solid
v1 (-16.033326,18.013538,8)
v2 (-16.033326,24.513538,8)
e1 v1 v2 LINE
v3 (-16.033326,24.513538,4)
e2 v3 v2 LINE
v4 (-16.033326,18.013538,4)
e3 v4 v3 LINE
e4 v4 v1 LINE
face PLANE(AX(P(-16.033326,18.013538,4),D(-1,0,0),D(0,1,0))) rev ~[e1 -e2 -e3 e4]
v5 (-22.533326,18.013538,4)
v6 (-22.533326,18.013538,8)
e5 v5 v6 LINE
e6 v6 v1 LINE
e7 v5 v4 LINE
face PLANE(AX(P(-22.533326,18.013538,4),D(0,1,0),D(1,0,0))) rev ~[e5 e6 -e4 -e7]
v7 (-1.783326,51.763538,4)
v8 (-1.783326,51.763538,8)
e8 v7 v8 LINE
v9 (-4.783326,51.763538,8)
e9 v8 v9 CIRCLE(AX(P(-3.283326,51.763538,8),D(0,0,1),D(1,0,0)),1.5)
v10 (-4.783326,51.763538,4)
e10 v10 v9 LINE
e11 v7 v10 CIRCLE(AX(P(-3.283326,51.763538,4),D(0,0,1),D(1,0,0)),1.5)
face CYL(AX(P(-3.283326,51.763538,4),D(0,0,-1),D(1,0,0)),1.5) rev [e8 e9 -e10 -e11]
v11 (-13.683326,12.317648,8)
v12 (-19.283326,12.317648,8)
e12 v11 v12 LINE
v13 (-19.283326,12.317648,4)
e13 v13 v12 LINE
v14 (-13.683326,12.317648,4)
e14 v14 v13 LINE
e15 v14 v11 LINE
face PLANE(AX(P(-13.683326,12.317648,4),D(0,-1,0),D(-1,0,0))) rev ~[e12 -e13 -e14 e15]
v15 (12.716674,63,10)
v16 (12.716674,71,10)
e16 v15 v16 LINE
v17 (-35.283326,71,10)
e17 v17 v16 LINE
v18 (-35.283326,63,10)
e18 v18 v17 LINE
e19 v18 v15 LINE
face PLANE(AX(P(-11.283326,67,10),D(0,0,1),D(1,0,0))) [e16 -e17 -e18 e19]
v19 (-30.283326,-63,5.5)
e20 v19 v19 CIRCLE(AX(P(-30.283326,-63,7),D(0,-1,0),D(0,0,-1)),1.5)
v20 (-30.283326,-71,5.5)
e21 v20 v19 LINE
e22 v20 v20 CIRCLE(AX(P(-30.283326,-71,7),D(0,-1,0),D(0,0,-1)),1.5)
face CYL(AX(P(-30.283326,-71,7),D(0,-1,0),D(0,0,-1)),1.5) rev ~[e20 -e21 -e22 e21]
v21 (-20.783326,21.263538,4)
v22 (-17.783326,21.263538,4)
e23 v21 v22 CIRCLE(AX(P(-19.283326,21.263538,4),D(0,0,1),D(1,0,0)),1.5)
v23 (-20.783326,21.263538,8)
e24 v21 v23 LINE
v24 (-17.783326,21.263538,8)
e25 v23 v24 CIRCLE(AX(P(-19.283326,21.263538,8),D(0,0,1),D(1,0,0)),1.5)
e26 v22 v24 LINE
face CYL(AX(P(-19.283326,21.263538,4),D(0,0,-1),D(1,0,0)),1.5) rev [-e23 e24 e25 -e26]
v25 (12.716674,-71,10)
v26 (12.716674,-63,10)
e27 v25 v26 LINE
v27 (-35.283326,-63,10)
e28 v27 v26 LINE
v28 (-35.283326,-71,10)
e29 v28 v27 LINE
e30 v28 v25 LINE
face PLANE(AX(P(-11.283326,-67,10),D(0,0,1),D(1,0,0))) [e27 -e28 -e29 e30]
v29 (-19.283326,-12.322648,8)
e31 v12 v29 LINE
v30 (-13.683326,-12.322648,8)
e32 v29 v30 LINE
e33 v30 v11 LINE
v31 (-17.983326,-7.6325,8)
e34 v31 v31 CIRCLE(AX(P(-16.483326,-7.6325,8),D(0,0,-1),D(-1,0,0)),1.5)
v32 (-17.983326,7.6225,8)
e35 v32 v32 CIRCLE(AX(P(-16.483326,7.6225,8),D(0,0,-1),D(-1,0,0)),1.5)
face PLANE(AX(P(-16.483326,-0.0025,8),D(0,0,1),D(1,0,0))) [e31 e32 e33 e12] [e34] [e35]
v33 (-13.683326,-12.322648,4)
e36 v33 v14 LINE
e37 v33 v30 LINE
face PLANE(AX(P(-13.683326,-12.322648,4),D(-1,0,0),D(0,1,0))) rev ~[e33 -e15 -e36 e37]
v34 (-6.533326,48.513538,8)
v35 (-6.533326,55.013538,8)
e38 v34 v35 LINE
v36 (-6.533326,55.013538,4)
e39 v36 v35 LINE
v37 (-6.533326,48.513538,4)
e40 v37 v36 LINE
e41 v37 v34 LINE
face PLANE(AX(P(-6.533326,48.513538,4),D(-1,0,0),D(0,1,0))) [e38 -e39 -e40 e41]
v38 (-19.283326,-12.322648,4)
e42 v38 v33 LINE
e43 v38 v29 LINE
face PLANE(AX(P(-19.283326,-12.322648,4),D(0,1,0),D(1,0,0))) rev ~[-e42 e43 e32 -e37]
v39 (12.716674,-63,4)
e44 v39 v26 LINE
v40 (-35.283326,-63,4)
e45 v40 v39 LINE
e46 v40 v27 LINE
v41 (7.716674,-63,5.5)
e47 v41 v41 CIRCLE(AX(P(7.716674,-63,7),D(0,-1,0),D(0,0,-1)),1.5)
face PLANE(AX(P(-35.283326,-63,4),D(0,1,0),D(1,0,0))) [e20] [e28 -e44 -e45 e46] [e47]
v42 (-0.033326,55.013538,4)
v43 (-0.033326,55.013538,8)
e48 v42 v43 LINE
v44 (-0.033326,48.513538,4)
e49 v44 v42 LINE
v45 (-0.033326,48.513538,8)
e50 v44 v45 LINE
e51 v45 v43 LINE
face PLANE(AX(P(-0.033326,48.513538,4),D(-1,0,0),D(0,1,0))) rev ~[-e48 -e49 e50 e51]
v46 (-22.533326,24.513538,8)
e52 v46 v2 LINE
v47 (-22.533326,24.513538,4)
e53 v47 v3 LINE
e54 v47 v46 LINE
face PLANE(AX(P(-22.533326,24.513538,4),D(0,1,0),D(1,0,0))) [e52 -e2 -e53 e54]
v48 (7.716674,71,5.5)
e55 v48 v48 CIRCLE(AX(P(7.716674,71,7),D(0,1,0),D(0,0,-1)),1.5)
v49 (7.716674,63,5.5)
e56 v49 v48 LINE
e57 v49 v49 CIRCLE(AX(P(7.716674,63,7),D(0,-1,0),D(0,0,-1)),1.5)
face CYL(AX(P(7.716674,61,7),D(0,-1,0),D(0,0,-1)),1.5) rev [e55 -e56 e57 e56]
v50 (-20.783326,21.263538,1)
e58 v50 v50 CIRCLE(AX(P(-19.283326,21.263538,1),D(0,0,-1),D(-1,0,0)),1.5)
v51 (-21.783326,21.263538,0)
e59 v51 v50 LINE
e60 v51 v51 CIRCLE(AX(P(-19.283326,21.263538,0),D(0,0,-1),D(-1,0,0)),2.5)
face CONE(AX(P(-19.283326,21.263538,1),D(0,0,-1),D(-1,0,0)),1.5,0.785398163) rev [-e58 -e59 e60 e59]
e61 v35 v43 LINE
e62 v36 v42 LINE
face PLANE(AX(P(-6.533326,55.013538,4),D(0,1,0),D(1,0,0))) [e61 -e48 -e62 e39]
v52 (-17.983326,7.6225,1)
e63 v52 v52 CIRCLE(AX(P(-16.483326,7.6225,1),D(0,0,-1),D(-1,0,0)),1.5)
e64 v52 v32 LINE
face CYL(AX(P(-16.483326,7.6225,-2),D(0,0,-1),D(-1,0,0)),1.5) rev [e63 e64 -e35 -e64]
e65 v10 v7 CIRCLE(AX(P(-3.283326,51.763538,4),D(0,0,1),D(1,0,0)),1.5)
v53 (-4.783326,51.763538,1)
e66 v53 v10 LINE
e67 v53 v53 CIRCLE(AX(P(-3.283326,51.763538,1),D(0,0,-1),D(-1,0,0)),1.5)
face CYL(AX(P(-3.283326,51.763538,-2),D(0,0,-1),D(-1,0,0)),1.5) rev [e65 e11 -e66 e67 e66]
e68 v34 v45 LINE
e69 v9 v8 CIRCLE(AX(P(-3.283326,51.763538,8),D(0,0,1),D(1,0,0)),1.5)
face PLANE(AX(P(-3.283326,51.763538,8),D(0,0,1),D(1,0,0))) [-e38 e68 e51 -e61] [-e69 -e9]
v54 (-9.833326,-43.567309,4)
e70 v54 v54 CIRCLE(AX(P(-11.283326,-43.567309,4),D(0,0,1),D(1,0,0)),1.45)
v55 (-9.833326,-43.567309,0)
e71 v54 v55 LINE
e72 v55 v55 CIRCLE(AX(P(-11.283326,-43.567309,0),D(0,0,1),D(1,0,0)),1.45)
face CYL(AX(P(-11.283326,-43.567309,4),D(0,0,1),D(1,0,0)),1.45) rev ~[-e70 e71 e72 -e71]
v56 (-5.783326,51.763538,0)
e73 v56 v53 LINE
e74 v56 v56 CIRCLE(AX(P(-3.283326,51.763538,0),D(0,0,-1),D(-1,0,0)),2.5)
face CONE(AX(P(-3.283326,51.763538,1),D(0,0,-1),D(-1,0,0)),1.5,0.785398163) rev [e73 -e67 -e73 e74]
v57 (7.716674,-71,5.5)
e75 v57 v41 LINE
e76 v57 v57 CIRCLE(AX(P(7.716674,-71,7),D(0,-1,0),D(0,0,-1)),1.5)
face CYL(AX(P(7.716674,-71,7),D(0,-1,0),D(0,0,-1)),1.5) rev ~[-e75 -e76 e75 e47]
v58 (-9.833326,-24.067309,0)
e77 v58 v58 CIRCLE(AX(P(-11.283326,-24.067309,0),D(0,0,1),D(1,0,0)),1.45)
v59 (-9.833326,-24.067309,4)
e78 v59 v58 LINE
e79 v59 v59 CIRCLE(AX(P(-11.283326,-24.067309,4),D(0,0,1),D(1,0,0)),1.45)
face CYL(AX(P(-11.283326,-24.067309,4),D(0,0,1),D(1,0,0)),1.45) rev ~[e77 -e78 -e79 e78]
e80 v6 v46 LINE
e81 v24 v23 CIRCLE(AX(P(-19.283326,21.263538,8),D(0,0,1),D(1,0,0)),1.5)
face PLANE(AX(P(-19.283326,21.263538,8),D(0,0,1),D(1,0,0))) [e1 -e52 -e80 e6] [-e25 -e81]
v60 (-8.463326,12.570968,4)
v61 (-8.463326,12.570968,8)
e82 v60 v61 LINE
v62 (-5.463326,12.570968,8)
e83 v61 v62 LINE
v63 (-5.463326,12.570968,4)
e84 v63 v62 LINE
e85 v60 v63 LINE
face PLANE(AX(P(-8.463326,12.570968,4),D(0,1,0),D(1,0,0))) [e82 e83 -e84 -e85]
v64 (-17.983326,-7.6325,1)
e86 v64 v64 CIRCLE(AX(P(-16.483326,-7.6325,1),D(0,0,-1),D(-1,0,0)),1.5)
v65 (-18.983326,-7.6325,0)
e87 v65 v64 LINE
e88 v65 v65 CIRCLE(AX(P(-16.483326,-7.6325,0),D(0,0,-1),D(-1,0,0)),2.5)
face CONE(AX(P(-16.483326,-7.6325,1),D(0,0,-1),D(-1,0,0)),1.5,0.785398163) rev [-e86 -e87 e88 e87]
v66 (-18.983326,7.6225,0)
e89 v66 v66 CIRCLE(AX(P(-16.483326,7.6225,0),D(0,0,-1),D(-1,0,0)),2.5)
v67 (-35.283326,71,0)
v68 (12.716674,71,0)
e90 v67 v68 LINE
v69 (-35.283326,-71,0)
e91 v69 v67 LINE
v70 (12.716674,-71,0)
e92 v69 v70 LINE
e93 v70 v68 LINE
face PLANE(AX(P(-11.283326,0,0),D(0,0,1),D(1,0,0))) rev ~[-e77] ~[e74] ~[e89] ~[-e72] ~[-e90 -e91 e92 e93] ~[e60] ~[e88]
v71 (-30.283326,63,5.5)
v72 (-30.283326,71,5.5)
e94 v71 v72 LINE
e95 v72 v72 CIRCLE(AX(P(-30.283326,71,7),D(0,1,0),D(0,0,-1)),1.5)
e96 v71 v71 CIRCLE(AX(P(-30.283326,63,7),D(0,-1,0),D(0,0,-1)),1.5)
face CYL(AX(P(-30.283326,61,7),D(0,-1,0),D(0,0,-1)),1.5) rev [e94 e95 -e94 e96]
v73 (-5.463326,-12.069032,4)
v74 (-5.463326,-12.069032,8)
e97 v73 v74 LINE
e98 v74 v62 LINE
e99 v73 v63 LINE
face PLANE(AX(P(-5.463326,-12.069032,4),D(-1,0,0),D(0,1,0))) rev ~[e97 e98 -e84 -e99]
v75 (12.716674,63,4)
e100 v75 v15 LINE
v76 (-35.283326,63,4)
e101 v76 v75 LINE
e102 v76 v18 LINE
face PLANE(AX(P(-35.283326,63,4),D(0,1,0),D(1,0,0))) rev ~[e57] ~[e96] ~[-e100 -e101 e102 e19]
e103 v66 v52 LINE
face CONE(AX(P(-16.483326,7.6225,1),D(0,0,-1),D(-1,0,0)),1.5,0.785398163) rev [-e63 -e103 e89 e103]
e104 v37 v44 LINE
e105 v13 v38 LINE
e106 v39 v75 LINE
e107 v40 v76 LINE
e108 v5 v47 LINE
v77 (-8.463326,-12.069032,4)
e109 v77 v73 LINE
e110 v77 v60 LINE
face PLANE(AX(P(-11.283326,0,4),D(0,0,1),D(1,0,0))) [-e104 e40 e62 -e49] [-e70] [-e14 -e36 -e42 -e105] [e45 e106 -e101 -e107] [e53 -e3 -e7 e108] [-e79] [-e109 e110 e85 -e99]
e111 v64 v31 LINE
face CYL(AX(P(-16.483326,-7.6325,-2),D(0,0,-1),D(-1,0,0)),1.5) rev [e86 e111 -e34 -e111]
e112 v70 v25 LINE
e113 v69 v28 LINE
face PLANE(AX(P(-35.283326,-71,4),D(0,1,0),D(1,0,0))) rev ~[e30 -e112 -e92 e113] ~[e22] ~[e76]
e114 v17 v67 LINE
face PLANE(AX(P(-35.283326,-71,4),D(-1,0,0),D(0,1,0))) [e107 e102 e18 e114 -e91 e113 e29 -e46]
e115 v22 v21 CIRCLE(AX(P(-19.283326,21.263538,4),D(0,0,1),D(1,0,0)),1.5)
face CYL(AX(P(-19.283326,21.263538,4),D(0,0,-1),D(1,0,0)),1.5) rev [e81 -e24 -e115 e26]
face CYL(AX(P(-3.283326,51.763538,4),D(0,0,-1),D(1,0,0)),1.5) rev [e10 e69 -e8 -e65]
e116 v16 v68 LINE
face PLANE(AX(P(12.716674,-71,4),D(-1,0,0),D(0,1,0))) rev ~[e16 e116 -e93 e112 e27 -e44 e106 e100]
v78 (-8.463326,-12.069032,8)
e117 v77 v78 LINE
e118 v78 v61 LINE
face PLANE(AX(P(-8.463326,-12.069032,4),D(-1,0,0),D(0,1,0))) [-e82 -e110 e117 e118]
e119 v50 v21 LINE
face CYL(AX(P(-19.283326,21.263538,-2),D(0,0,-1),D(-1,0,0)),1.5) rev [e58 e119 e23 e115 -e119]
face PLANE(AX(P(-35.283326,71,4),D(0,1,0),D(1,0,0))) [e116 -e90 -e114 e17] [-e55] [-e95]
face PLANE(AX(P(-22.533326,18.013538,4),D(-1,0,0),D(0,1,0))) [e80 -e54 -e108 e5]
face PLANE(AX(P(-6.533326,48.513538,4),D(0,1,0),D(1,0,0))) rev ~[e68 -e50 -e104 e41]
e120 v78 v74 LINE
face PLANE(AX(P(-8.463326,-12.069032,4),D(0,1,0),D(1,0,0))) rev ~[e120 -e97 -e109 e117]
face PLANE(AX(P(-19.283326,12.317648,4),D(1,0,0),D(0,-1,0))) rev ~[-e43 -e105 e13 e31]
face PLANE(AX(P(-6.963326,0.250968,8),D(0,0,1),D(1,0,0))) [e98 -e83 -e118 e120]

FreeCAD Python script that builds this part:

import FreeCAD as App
import Part
import Sketcher

V = App.Vector


def edges_at(feature, points):
    """Names of the edges that pass closest to the given points."""
    edges = feature.Shape.Edges
    near = lambda p: min(range(len(edges)), key=lambda i: edges[i].distToShape(Part.Vertex(*p))[0])
    return sorted({f"Edge{near(p) + 1}" for p in points})

doc = App.newDocument("Part")
body = doc.addObject("PartDesign::Body", "Body")

sketch1 = body.newObject("Sketcher::SketchObject", "Sketch")
sketch1.AttachmentSupport = (doc.getObject("XY_Plane"), [""])
sketch1.MapMode = "FlatFace"
sketch1.addGeometry([
    Part.LineSegment(V(-35, 71, 0), V(-35, -71, 0)),
    Part.LineSegment(V(-35, -71, 0), V(13, -71, 0)),
    Part.LineSegment(V(13, -71, 0), V(13, 71, 0)),
    Part.LineSegment(V(13, 71, 0), V(-35, 71, 0)),
], False)
sketch1.addConstraint([
    Sketcher.Constraint("Coincident", 0, 2, 1, 1),
    Sketcher.Constraint("Coincident", 1, 2, 2, 1),
    Sketcher.Constraint("Coincident", 2, 2, 3, 1),
    Sketcher.Constraint("Coincident", 3, 2, 0, 1),
    Sketcher.Constraint("Vertical", 0),
    Sketcher.Constraint("Horizontal", 1),
    Sketcher.Constraint("Vertical", 2),
    Sketcher.Constraint("Horizontal", 3),
    Sketcher.Constraint("DistanceX", 1, 1, 1, 2, 48.0),
    Sketcher.Constraint("DistanceY", 0, 2, 0, 1, 142.0),
    Sketcher.Constraint("DistanceY", 0, 2, -1, 1, 71.0),
    Sketcher.Constraint("DistanceX", 0, 2, -1, 1, 35.283326),
])
pad1 = body.newObject("PartDesign::Pad", "Pad")
pad1.Profile = sketch1
pad1.Length = 4

sketch2 = body.newObject("Sketcher::SketchObject", "Sketch001")
sketch2.AttachmentSupport = (doc.getObject("XY_Plane"), [""])
sketch2.MapMode = "FlatFace"
sketch2.AttachmentOffset = App.Placement(V(0, 0, 4), App.Rotation())
sketch2.addGeometry([
    Part.LineSegment(V(-14, 12, 0), V(-19, 12, 0)),
    Part.LineSegment(V(-19, 12, 0), V(-19, -12, 0)),
    Part.LineSegment(V(-19, -12, 0), V(-14, -12, 0)),
    Part.LineSegment(V(-14, -12, 0), V(-14, 12, 0)),
], False)
sketch2.addConstraint([
    Sketcher.Constraint("Coincident", 0, 2, 1, 1),
    Sketcher.Constraint("Coincident", 1, 2, 2, 1),
    Sketcher.Constraint("Coincident", 2, 2, 3, 1),
    Sketcher.Constraint("Coincident", 3, 2, 0, 1),
    Sketcher.Constraint("Horizontal", 0),
    Sketcher.Constraint("Vertical", 1),
    Sketcher.Constraint("Horizontal", 2),
    Sketcher.Constraint("Vertical", 3),
    Sketcher.Constraint("DistanceX", 0, 2, 0, 1, 5.6),
    Sketcher.Constraint("DistanceY", 1, 2, 1, 1, 24.640295),
    Sketcher.Constraint("DistanceX", 0, 2, -1, 1, 19.283326),
    Sketcher.Constraint("DistanceY", -1, 1, 0, 2, 12.317648),
])
pad2 = body.newObject("PartDesign::Pad", "Pad001")
pad2.Profile = sketch2
pad2.Length = 4

sketch3 = body.newObject("Sketcher::SketchObject", "Sketch002")
sketch3.AttachmentSupport = (doc.getObject("XY_Plane"), [""])
sketch3.MapMode = "FlatFace"
sketch3.AttachmentOffset = App.Placement(V(0, 0, 8), App.Rotation())
sketch3.addGeometry([
    Part.Circle(V(-16.5, 7.6, 0), V(0, 0, 1), 1.5),
    Part.Circle(V(-16.5, -7.6, 0), V(0, 0, 1), 1.5),
], False)
sketch3.addConstraint([
    Sketcher.Constraint("Equal", 0, 1),
    Sketcher.Constraint("Vertical", 0, 3, 1, 3),
    Sketcher.Constraint("Diameter", 0, 3.0),
    Sketcher.Constraint("DistanceY", 1, 3, 0, 3, 15.255),
    Sketcher.Constraint("DistanceY", -1, 1, 0, 3, 7.6225),
    Sketcher.Constraint("DistanceX", 0, 3, -1, 1, 16.483326),
])
pocket1 = body.newObject("PartDesign::Pocket", "Pocket")
pocket1.Profile = sketch3
pocket1.Type = "ThroughAll"
pocket1.Midplane = True

sketch4 = body.newObject("Sketcher::SketchObject", "Sketch003")
sketch4.AttachmentSupport = (doc.getObject("XY_Plane"), [""])
sketch4.MapMode = "FlatFace"
sketch4.AttachmentOffset = App.Placement(V(0, 0, 4), App.Rotation())
sketch4.addGeometry([
    Part.LineSegment(V(-8.5, 12.6, 0), V(-8.5, -12.1, 0)),
    Part.LineSegment(V(-8.5, -12.1, 0), V(-5.5, -12.1, 0)),
    Part.LineSegment(V(-5.5, -12.1, 0), V(-5.5, 12.6, 0)),
    Part.LineSegment(V(-5.5, 12.6, 0), V(-8.5, 12.6, 0)),
], False)
sketch4.addConstraint([
    Sketcher.Constraint("Coincident", 0, 2, 1, 1),
    Sketcher.Constraint("Coincident", 1, 2, 2, 1),
    Sketcher.Constraint("Coincident", 2, 2, 3, 1),
    Sketcher.Constraint("Coincident", 3, 2, 0, 1),
    Sketcher.Constraint("Vertical", 0),
    Sketcher.Constraint("Horizontal", 1),
    Sketcher.Constraint("Vertical", 2),
    Sketcher.Constraint("Horizontal", 3),
    Sketcher.Constraint("DistanceX", 1, 1, 1, 2, 3.0),
    Sketcher.Constraint("DistanceY", 0, 2, 0, 1, 24.64),
    Sketcher.Constraint("DistanceY", 0, 2, -1, 1, 12.069032),
    Sketcher.Constraint("DistanceX", 0, 2, -1, 1, 8.463326),
])
pad3 = body.newObject("PartDesign::Pad", "Pad002")
pad3.Profile = sketch4
pad3.Length = 4

sketch5 = body.newObject("Sketcher::SketchObject", "Sketch004")
sketch5.AttachmentSupport = (doc.getObject("XY_Plane"), [""])
sketch5.MapMode = "FlatFace"
sketch5.AttachmentOffset = App.Placement(V(0, 0, 4), App.Rotation())
sketch5.addGeometry([
    Part.LineSegment(V(-35, 71, 0), V(-35, 63, 0)),
    Part.LineSegment(V(-35, 63, 0), V(13, 63, 0)),
    Part.LineSegment(V(13, 63, 0), V(13, 71, 0)),
    Part.LineSegment(V(13, 71, 0), V(-35, 71, 0)),
], False)
sketch5.addConstraint([
    Sketcher.Constraint("Coincident", 0, 2, 1, 1),
    Sketcher.Constraint("Coincident", 1, 2, 2, 1),
    Sketcher.Constraint("Coincident", 2, 2, 3, 1),
    Sketcher.Constraint("Coincident", 3, 2, 0, 1),
    Sketcher.Constraint("Vertical", 0),
    Sketcher.Constraint("Horizontal", 1),
    Sketcher.Constraint("Vertical", 2),
    Sketcher.Constraint("Horizontal", 3),
    Sketcher.Constraint("DistanceX", 1, 1, 1, 2, 48.0),
    Sketcher.Constraint("DistanceY", 0, 2, 0, 1, 8.0),
    Sketcher.Constraint("DistanceY", -1, 1, 0, 2, 63.0),
    Sketcher.Constraint("DistanceX", 0, 2, -1, 1, 35.283326),
])
pad4 = body.newObject("PartDesign::Pad", "Pad003")
pad4.Profile = sketch5
pad4.Length = 6

sketch6 = body.newObject("Sketcher::SketchObject", "Sketch005")
sketch6.AttachmentSupport = (doc.getObject("XY_Plane"), [""])
sketch6.MapMode = "FlatFace"
sketch6.AttachmentOffset = App.Placement(V(0, 0, 4), App.Rotation())
sketch6.addGeometry([
    Part.LineSegment(V(-35, -63, 0), V(-35, -71, 0)),
    Part.LineSegment(V(-35, -71, 0), V(13, -71, 0)),
    Part.LineSegment(V(13, -71, 0), V(13, -63, 0)),
    Part.LineSegment(V(13, -63, 0), V(-35, -63, 0)),
], False)
sketch6.addConstraint([
    Sketcher.Constraint("Coincident", 0, 2, 1, 1),
    Sketcher.Constraint("Coincident", 1, 2, 2, 1),
    Sketcher.Constraint("Coincident", 2, 2, 3, 1),
    Sketcher.Constraint("Coincident", 3, 2, 0, 1),
    Sketcher.Constraint("Vertical", 0),
    Sketcher.Constraint("Horizontal", 1),
    Sketcher.Constraint("Vertical", 2),
    Sketcher.Constraint("Horizontal", 3),
    Sketcher.Constraint("DistanceX", 1, 1, 1, 2, 48.0),
    Sketcher.Constraint("DistanceY", 0, 2, 0, 1, 8.0),
    Sketcher.Constraint("DistanceY", 0, 2, -1, 1, 71.0),
    Sketcher.Constraint("DistanceX", 0, 2, -1, 1, 35.283326),
])
pad5 = body.newObject("PartDesign::Pad", "Pad004")
pad5.Profile = sketch6
pad5.Length = 6

sketch7 = body.newObject("Sketcher::SketchObject", "Sketch006")
sketch7.AttachmentSupport = (doc.getObject("XZ_Plane"), [""])
sketch7.MapMode = "FlatFace"
sketch7.AttachmentOffset = App.Placement(V(0, 0, 71), App.Rotation())
sketch7.addGeometry([
    Part.Circle(V(-30.3, 7, 0), V(0, 0, 1), 1.5),
    Part.Circle(V(7.7, 7, 0), V(0, 0, 1), 1.5),
], False)
sketch7.addConstraint([
    Sketcher.Constraint("Equal", 0, 1),
    Sketcher.Constraint("Horizontal", 0, 3, 1, 3),
    Sketcher.Constraint("Diameter", 0, 3.0),
    Sketcher.Constraint("DistanceY", -1, 1, 0, 3, 7.0),
    Sketcher.Constraint("DistanceX", 0, 3, 1, 3, 38.0),
    Sketcher.Constraint("DistanceX", 0, 3, -1, 1, 30.283326),
])
pocket2 = body.newObject("PartDesign::Pocket", "Pocket001")
pocket2.Profile = sketch7
pocket2.Length = 10

sketch8 = body.newObject("Sketcher::SketchObject", "Sketch007")
sketch8.AttachmentSupport = (doc.getObject("XZ_Plane"), [""])
sketch8.MapMode = "FlatFace"
sketch8.AttachmentOffset = App.Placement(V(0, 0, -61), App.Rotation())
sketch8.addGeometry([
    Part.Circle(V(7.7, 7, 0), V(0, 0, 1), 1.5),
    Part.Circle(V(-30.3, 7, 0), V(0, 0, 1), 1.5),
], False)
sketch8.addConstraint([
    Sketcher.Constraint("Equal", 0, 1),
    Sketcher.Constraint("Horizontal", 0, 3, 1, 3),
    Sketcher.Constraint("Diameter", 0, 3.0),
    Sketcher.Constraint("DistanceY", -1, 1, 0, 3, 7.0),
    Sketcher.Constraint("DistanceX", 1, 3, 0, 3, 38.0),
    Sketcher.Constraint("DistanceX", -1, 1, 0, 3, 7.716674),
])
pocket3 = body.newObject("PartDesign::Pocket", "Pocket002")
pocket3.Profile = sketch8
pocket3.Length = 10

sketch9 = body.newObject("Sketcher::SketchObject", "Sketch008")
sketch9.AttachmentSupport = (doc.getObject("XY_Plane"), [""])
sketch9.MapMode = "FlatFace"
sketch9.AttachmentOffset = App.Placement(V(0, 0, 4), App.Rotation())
sketch9.addGeometry([
    Part.LineSegment(V(-22.5, 24.5, 0), V(-22.5, 18, 0)),
    Part.LineSegment(V(-22.5, 18, 0), V(-16, 18, 0)),
    Part.LineSegment(V(-16, 18, 0), V(-16, 24.5, 0)),
    Part.LineSegment(V(-16, 24.5, 0), V(-22.5, 24.5, 0)),
    Part.Circle(V(-19.3, 21.3, 0), V(0, 0, 1), 1.5),
    Part.LineSegment(V(-6.5, 55, 0), V(-6.5, 48.5, 0)),
    Part.LineSegment(V(-6.5, 48.5, 0), V(0, 48.5, 0)),
    Part.LineSegment(V(0, 48.5, 0), V(0, 55, 0)),
    Part.LineSegment(V(0, 55, 0), V(-6.5, 55, 0)),
    Part.Circle(V(-3.3, 51.8, 0), V(0, 0, 1), 1.5),
], False)
sketch9.addConstraint([
    Sketcher.Constraint("Coincident", 0, 2, 1, 1),
    Sketcher.Constraint("Coincident", 1, 2, 2, 1),
    Sketcher.Constraint("Coincident", 2, 2, 3, 1),
    Sketcher.Constraint("Coincident", 3, 2, 0, 1),
    Sketcher.Constraint("Coincident", 5, 2, 6, 1),
    Sketcher.Constraint("Coincident", 6, 2, 7, 1),
    Sketcher.Constraint("Coincident", 7, 2, 8, 1),
    Sketcher.Constraint("Coincident", 8, 2, 5, 1),
    Sketcher.Constraint("Vertical", 0),
    Sketcher.Constraint("Horizontal", 1),
    Sketcher.Constraint("Vertical", 2),
    Sketcher.Constraint("Horizontal", 3),
    Sketcher.Constraint("Vertical", 5),
    Sketcher.Constraint("Horizontal", 6),
    Sketcher.Constraint("Vertical", 7),
    Sketcher.Constraint("Horizontal", 8),
    Sketcher.Constraint("Equal", 4, 9),
    Sketcher.Constraint("Equal", 3, 6),
    Sketcher.Constraint("Equal", 8, 0),
    Sketcher.Constraint("Equal", 2, 5),
    Sketcher.Constraint("Diameter", 4, 3.0),
    Sketcher.Constraint("DistanceX", 1, 1, 1, 2, 6.5),
    Sketcher.Constraint("DistanceX", 4, 3, 9, 3, 16.0),
    Sketcher.Constraint("DistanceY", 2, 2, 5, 2, 24.0),
    Sketcher.Constraint("DistanceX", 3, 2, 5, 2, 16.0),
    Sketcher.Constraint("DistanceY", 4, 3, 9, 3, 30.5),
    Sketcher.Constraint("DistanceX", 0, 2, 4, 3, 3.25),
    Sketcher.Constraint("DistanceY", 0, 2, 4, 3, 3.25),
    Sketcher.Constraint("DistanceX", 4, 3, -1, 1, 19.283326),
    Sketcher.Constraint("DistanceY", -1, 1, 4, 3, 21.263538),
])
pad6 = body.newObject("PartDesign::Pad", "Pad005")
pad6.Profile = sketch9
pad6.Length = 4

sketch10 = body.newObject("Sketcher::SketchObject", "Sketch009")
sketch10.AttachmentSupport = (doc.getObject("XY_Plane"), [""])
sketch10.MapMode = "FlatFace"
sketch10.AttachmentOffset = App.Placement(V(0, 0, 4), App.Rotation())
sketch10.addGeometry([
    Part.Circle(V(-11.3, -24.1, 0), V(0, 0, 1), 1.4),
    Part.Circle(V(-11.3, -43.6, 0), V(0, 0, 1), 1.4),
], False)
sketch10.addConstraint([
    Sketcher.Constraint("Equal", 0, 1),
    Sketcher.Constraint("Vertical", 0, 3, 1, 3),
    Sketcher.Constraint("Diameter", 0, 2.9),
    Sketcher.Constraint("DistanceY", 1, 3, 0, 3, 19.5),
    Sketcher.Constraint("DistanceY", 0, 3, -1, 1, 24.067309),
    Sketcher.Constraint("DistanceX", 0, 3, -1, 1, 11.283326),
])
pocket4 = body.newObject("PartDesign::Pocket", "Pocket003")
pocket4.Profile = sketch10
pocket4.Length = 10

sketch11 = body.newObject("Sketcher::SketchObject", "Sketch010")
sketch11.AttachmentSupport = (doc.getObject("XY_Plane"), [""])
sketch11.MapMode = "FlatFace"
sketch11.AttachmentOffset = App.Placement(V(0, 0, -2), App.Rotation())
sketch11.addGeometry([
    Part.Circle(V(-3.3, 51.8, 0), V(0, 0, 1), 1.5),
    Part.Circle(V(-19.3, 21.3, 0), V(0, 0, 1), 1.5),
], False)
sketch11.addConstraint([
    Sketcher.Constraint("Equal", 0, 1),
    Sketcher.Constraint("Diameter", 0, 3.0),
    Sketcher.Constraint("DistanceX", 1, 3, 0, 3, 16.0),
    Sketcher.Constraint("DistanceY", 1, 3, 0, 3, 30.5),
    Sketcher.Constraint("DistanceX", 0, 3, -1, 1, 3.283326),
    Sketcher.Constraint("DistanceY", -1, 1, 0, 3, 51.763538),
])
pocket5 = body.newObject("PartDesign::Pocket", "Pocket004")
pocket5.Profile = sketch11
pocket5.Length = 10
pocket5.Reversed = True
doc.recompute()

chamfer = body.newObject("PartDesign::Chamfer", "Chamfer")
chamfer.Base = (pocket5, edges_at(pocket5, [
    (-1.783, 51.764, 0),
    (-17.783, 21.264, 0),
    (-14.983, -7.633, 0),
    (-14.983, 7.622, 0),
]))
chamfer.Size = 1

doc.recompute()
